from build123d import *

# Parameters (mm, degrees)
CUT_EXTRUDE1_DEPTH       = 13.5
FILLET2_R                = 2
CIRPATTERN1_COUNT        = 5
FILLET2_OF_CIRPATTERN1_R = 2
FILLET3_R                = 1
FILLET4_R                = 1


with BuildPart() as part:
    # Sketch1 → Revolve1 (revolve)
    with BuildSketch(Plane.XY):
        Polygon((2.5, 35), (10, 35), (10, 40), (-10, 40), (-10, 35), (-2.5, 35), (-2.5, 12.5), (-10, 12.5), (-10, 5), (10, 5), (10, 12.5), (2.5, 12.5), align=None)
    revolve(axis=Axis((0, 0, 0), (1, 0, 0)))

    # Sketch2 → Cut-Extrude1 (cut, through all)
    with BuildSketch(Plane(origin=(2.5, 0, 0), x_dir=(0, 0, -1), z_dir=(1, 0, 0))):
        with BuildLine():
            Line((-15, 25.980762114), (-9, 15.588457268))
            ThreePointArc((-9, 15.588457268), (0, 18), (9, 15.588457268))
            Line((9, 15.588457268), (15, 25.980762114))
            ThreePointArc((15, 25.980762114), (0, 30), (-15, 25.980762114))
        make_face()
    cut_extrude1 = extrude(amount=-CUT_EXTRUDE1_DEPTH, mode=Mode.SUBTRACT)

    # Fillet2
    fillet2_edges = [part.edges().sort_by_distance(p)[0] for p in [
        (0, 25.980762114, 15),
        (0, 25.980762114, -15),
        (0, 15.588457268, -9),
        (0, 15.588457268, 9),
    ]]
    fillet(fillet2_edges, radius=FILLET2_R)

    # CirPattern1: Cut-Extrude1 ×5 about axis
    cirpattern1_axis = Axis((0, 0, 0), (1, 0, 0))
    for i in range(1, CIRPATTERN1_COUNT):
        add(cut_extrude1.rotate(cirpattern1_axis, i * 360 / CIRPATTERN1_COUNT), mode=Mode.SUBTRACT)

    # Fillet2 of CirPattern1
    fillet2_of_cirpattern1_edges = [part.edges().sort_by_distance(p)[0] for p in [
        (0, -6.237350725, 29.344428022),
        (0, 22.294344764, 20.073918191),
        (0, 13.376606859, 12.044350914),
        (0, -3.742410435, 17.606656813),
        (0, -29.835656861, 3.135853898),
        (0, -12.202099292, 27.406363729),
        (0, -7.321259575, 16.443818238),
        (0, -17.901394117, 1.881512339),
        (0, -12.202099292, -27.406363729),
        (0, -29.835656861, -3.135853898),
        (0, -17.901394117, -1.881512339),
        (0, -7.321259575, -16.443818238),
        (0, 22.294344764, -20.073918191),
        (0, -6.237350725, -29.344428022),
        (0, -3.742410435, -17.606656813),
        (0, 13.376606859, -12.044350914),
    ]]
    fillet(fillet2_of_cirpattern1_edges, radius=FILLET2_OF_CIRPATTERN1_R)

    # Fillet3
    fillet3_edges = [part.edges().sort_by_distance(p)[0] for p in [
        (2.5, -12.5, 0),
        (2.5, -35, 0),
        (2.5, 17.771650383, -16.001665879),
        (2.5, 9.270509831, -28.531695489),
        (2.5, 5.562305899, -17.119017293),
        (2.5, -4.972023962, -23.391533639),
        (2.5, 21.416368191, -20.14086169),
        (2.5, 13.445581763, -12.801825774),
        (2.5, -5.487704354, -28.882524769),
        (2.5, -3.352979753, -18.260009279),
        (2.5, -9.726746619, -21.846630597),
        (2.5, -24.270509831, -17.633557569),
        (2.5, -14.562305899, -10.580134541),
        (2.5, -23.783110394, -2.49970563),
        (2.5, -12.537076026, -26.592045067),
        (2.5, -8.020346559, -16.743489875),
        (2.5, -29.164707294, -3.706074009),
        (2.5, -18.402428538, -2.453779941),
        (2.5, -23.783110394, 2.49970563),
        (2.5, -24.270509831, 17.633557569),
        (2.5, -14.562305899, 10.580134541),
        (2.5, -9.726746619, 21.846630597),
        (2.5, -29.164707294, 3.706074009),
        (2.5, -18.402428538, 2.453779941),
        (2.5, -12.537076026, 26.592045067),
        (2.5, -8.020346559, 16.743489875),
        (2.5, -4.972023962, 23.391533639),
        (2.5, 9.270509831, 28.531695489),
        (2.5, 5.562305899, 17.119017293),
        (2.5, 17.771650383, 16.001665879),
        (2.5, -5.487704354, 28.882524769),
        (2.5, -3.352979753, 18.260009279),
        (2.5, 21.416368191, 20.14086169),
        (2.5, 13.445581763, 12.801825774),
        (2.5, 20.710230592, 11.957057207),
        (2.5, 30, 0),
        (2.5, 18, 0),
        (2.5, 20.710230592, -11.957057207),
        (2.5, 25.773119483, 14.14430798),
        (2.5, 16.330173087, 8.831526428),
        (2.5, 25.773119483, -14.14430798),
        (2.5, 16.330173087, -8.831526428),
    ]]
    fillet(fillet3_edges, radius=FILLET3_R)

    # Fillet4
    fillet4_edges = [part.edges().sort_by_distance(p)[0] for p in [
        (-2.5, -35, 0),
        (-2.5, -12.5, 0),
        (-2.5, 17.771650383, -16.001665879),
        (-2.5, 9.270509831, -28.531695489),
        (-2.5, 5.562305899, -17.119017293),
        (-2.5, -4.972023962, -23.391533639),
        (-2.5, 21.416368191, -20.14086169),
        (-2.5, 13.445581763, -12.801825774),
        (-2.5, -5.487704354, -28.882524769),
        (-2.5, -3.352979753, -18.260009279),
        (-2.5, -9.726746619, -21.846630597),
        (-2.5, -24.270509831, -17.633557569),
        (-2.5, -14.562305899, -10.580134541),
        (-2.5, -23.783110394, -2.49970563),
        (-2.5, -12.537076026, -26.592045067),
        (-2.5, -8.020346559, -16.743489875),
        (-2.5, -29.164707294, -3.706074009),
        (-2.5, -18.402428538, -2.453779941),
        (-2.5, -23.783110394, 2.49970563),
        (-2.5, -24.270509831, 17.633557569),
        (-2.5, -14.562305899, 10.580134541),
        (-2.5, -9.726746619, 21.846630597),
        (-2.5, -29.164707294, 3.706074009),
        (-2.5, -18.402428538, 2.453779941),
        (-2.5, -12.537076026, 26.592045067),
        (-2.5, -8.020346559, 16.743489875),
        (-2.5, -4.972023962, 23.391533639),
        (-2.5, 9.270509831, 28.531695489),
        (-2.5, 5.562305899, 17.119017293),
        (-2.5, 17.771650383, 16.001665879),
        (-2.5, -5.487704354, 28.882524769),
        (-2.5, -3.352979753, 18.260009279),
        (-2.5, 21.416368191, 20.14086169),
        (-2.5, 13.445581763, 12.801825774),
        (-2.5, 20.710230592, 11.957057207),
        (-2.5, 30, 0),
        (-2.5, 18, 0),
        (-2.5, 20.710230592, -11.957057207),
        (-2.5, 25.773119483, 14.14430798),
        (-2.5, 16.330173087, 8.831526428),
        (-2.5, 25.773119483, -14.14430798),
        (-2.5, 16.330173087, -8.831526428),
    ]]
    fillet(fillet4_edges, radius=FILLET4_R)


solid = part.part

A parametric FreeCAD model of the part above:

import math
import FreeCAD as App
import Part
import Sketcher

V = App.Vector
Q = App.Units.Quantity


def edges_at(feature, points):
    """Names of the edges that pass closest to the given points."""
    edges = feature.Shape.Edges
    near = lambda p: min(range(len(edges)), key=lambda i: edges[i].distToShape(Part.Vertex(*p))[0])
    return sorted({f"Edge{near(p) + 1}" for p in points})


def add_polygon(sketch, points):
    """Adds a closed chain of lines whose ends are joined by coincident constraints."""
    first, n = sketch.GeometryCount, len(points)
    for a, b in zip(points, points[1:] + points[:1]):
        sketch.addGeometry(Part.LineSegment(App.Vector(*a, 0), App.Vector(*b, 0)), False)
    for i in range(n):
        sketch.addConstraint(Sketcher.Constraint("Coincident", first + i, 2, first + (i + 1) % n, 1))

doc = App.newDocument("Part")
body = doc.addObject("PartDesign::Body", "Body")

sketch1 = doc.addObject("Sketcher::SketchObject", "Sketch")
body.addObject(sketch1)
sketch1.AttachmentSupport = (doc.XY_Plane, [""])
sketch1.MapMode = "FlatFace"
add_polygon(sketch1, [(2.5, 35), (10, 35), (10, 40), (-10, 40), (-10, 35), (-2.5, 35), (-2.5, 12.5), (-10, 12.5), (-10, 5), (10, 5), (10, 12.5), (2.5, 12.5)])
sketch1.addConstraint([
    Sketcher.Constraint("Horizontal", 0),
    Sketcher.Constraint("Vertical", 1),
    Sketcher.Constraint("Horizontal", 2),
    Sketcher.Constraint("Vertical", 3),
    Sketcher.Constraint("Horizontal", 4),
    Sketcher.Constraint("Vertical", 5),
    Sketcher.Constraint("Horizontal", 6),
    Sketcher.Constraint("Vertical", 7),
    Sketcher.Constraint("Horizontal", 8),
    Sketcher.Constraint("Vertical", 9),
    Sketcher.Constraint("Horizontal", 10),
    Sketcher.Constraint("Vertical", 11),
    Sketcher.Constraint("Symmetric", 0, 2, 3, 2, -2),
    Sketcher.Constraint("Symmetric", 6, 2, 9, 2, -2),
    Sketcher.Constraint("Vertical", 3, 2, 6, 2),
    Sketcher.Constraint("Equal", 0, 4),
    Sketcher.Constraint("Equal", 10, 7),
    Sketcher.Constraint("DistanceX", 2, 2, 2, 1, 20.0),
    Sketcher.Constraint("DistanceY", 1, 1, 1, 2, 5.0),
    Sketcher.Constraint("DistanceX", 0, 1, 0, 2, 7.5),
    Sketcher.Constraint("DistanceY", 5, 2, 5, 1, 22.5),
    Sketcher.Constraint("DistanceY", -1, 1, 0, 2, 35.0),
])
revolution = doc.addObject("PartDesign::Revolution", "Revolution")
body.addObject(revolution)
revolution.Profile = sketch1
revolution.ReferenceAxis = (sketch1, ["H_Axis"])
revolution.Angle = 360

sketch2 = doc.addObject("Sketcher::SketchObject", "Sketch001")
body.addObject(sketch2)
sketch2.AttachmentSupport = (doc.YZ_Plane, [""])
sketch2.MapMode = "FlatFace"
sketch2.AttachmentOffset = App.Placement(V(0, 0, 2.5), App.Rotation())
sketch2.addGeometry([
    Part.LineSegment(V(25.980762, 15, 0), V(15.588457, 9, 0)),
    Part.ArcOfCircle(Part.Circle(V(0, 0, 0), V(0, 0, 1), 18), math.radians(-30), math.radians(30)),
    Part.LineSegment(V(15.588457, -9, 0), V(25.980762, -15, 0)),
    Part.ArcOfCircle(Part.Circle(V(0, 0, 0), V(0, 0, 1), 30), math.radians(-30), math.radians(30)),
], False)
sketch2.addConstraint([
    Sketcher.Constraint("Coincident", 0, 2, 1, 2),
    Sketcher.Constraint("Coincident", 1, 1, 2, 1),
    Sketcher.Constraint("Coincident", 2, 2, 3, 1),
    Sketcher.Constraint("Coincident", 3, 2, 0, 1),
    Sketcher.Constraint("Coincident", 1, 3, -1, 1),
    Sketcher.Constraint("Coincident", 3, 3, -1, 1),
    Sketcher.Constraint("Vertical", 0, 2, 1, 1),
    Sketcher.Constraint("Vertical", 2, 2, 3, 2),
    Sketcher.Constraint("Radius", 1, 18.0),
    Sketcher.Constraint("Radius", 3, 30.0),
    Sketcher.Constraint("Angle", 0, Q("-150 deg")),
    Sketcher.Constraint("DistanceY", -1, 1, 0, 2, 9.0),
])
pocket1 = doc.addObject("PartDesign::Pocket", "Pocket")
body.addObject(pocket1)
pocket1.Profile = sketch2
pocket1.Type = "ThroughAll"
doc.recompute()

fillet = doc.addObject("PartDesign::Fillet", "Fillet")
body.addObject(fillet)
fillet.Base = (pocket1, edges_at(pocket1, [
    (0, 25.981, 15),
    (0, 25.981, -15),
    (0, 15.588, -9),
    (0, 15.588, 9),
]))
fillet.Radius = 2
doc.recompute()

polarpattern = doc.addObject("PartDesign::PolarPattern", "PolarPattern")
body.addObject(polarpattern)
polarpattern.Originals = [pocket1]
polarpattern.Axis = (doc.X_Axis, [""])
polarpattern.Angle = 360
polarpattern.Occurrences = 5
body.Tip = polarpattern
doc.recompute()

fillet2 = doc.addObject("PartDesign::Fillet", "Fillet001")
body.addObject(fillet2)
fillet2.Base = (polarpattern, edges_at(polarpattern, [
    (0, -6.237, 29.344),
    (0, 22.294, 20.074),
    (0, 13.377, 12.044),
    (0, -3.742, 17.607),
    (0, -29.836, 3.136),
    (0, -12.202, 27.406),
    (0, -7.321, 16.444),
    (0, -17.901, 1.882),
    (0, -12.202, -27.406),
    (0, -29.836, -3.136),
    (0, -17.901, -1.882),
    (0, -7.321, -16.444),
    (0, 22.294, -20.074),
    (0, -6.237, -29.344),
    (0, -3.742, -17.607),
    (0, 13.377, -12.044),
]))
fillet2.Radius = 2
doc.recompute()

fillet3 = doc.addObject("PartDesign::Fillet", "Fillet002")
body.addObject(fillet3)
fillet3.Base = (fillet2, edges_at(fillet2, [
    (2.5, -12.5, 0),
    (2.5, -35, 0),
    (2.5, 17.772, -16.002),
    (2.5, 9.271, -28.532),
    (2.5, 5.562, -17.119),
    (2.5, -4.972, -23.392),
    (2.5, 21.416, -20.141),
    (2.5, 13.446, -12.802),
    (2.5, -5.488, -28.883),
    (2.5, -3.353, -18.26),
    (2.5, -9.727, -21.847),
    (2.5, -24.271, -17.634),
    (2.5, -14.562, -10.58),
    (2.5, -23.783, -2.5),
    (2.5, -12.537, -26.592),
    (2.5, -8.02, -16.743),
    (2.5, -29.165, -3.706),
    (2.5, -18.402, -2.454),
    (2.5, -23.783, 2.5),
    (2.5, -24.271, 17.634),
    (2.5, -14.562, 10.58),
    (2.5, -9.727, 21.847),
    (2.5, -29.165, 3.706),
    (2.5, -18.402, 2.454),
    (2.5, -12.537, 26.592),
    (2.5, -8.02, 16.743),
    (2.5, -4.972, 23.392),
    (2.5, 9.271, 28.532),
    (2.5, 5.562, 17.119),
    (2.5, 17.772, 16.002),
    (2.5, -5.488, 28.883),
    (2.5, -3.353, 18.26),
    (2.5, 21.416, 20.141),
    (2.5, 13.446, 12.802),
    (2.5, 20.71, 11.957),
    (2.5, 30, 0),
    (2.5, 18, 0),
    (2.5, 20.71, -11.957),
    (2.5, 25.773, 14.144),
    (2.5, 16.33, 8.832),
    (2.5, 25.773, -14.144),
    (2.5, 16.33, -8.832),
]))
fillet3.Radius = 1
doc.recompute()

fillet4 = doc.addObject("PartDesign::Fillet", "Fillet003")
body.addObject(fillet4)
fillet4.Base = (fillet3, edges_at(fillet3, [
    (-2.5, -35, 0),
    (-2.5, -12.5, 0),
    (-2.5, 17.772, -16.002),
    (-2.5, 9.271, -28.532),
    (-2.5, 5.562, -17.119),
    (-2.5, -4.972, -23.392),
    (-2.5, 21.416, -20.141),
    (-2.5, 13.446, -12.802),
    (-2.5, -5.488, -28.883),
    (-2.5, -3.353, -18.26),
    (-2.5, -9.727, -21.847),
    (-2.5, -24.271, -17.634),
    (-2.5, -14.562, -10.58),
    (-2.5, -23.783, -2.5),
    (-2.5, -12.537, -26.592),
    (-2.5, -8.02, -16.743),
    (-2.5, -29.165, -3.706),
    (-2.5, -18.402, -2.454),
    (-2.5, -23.783, 2.5),
    (-2.5, -24.271, 17.634),
    (-2.5, -14.562, 10.58),
    (-2.5, -9.727, 21.847),
    (-2.5, -29.165, 3.706),
    (-2.5, -18.402, 2.454),
    (-2.5, -12.537, 26.592),
    (-2.5, -8.02, 16.743),
    (-2.5, -4.972, 23.392),
    (-2.5, 9.271, 28.532),
    (-2.5, 5.562, 17.119),
    (-2.5, 17.772, 16.002),
    (-2.5, -5.488, 28.883),
    (-2.5, -3.353, 18.26),
    (-2.5, 21.416, 20.141),
    (-2.5, 13.446, 12.802),
    (-2.5, 20.71, 11.957),
    (-2.5, 30, 0),
    (-2.5, 18, 0),
    (-2.5, 20.71, -11.957),
    (-2.5, 25.773, 14.144),
    (-2.5, 16.33, 8.832),
    (-2.5, 25.773, -14.144),
    (-2.5, 16.33, -8.832),
]))
fillet4.Radius = 1

doc.recompute()
